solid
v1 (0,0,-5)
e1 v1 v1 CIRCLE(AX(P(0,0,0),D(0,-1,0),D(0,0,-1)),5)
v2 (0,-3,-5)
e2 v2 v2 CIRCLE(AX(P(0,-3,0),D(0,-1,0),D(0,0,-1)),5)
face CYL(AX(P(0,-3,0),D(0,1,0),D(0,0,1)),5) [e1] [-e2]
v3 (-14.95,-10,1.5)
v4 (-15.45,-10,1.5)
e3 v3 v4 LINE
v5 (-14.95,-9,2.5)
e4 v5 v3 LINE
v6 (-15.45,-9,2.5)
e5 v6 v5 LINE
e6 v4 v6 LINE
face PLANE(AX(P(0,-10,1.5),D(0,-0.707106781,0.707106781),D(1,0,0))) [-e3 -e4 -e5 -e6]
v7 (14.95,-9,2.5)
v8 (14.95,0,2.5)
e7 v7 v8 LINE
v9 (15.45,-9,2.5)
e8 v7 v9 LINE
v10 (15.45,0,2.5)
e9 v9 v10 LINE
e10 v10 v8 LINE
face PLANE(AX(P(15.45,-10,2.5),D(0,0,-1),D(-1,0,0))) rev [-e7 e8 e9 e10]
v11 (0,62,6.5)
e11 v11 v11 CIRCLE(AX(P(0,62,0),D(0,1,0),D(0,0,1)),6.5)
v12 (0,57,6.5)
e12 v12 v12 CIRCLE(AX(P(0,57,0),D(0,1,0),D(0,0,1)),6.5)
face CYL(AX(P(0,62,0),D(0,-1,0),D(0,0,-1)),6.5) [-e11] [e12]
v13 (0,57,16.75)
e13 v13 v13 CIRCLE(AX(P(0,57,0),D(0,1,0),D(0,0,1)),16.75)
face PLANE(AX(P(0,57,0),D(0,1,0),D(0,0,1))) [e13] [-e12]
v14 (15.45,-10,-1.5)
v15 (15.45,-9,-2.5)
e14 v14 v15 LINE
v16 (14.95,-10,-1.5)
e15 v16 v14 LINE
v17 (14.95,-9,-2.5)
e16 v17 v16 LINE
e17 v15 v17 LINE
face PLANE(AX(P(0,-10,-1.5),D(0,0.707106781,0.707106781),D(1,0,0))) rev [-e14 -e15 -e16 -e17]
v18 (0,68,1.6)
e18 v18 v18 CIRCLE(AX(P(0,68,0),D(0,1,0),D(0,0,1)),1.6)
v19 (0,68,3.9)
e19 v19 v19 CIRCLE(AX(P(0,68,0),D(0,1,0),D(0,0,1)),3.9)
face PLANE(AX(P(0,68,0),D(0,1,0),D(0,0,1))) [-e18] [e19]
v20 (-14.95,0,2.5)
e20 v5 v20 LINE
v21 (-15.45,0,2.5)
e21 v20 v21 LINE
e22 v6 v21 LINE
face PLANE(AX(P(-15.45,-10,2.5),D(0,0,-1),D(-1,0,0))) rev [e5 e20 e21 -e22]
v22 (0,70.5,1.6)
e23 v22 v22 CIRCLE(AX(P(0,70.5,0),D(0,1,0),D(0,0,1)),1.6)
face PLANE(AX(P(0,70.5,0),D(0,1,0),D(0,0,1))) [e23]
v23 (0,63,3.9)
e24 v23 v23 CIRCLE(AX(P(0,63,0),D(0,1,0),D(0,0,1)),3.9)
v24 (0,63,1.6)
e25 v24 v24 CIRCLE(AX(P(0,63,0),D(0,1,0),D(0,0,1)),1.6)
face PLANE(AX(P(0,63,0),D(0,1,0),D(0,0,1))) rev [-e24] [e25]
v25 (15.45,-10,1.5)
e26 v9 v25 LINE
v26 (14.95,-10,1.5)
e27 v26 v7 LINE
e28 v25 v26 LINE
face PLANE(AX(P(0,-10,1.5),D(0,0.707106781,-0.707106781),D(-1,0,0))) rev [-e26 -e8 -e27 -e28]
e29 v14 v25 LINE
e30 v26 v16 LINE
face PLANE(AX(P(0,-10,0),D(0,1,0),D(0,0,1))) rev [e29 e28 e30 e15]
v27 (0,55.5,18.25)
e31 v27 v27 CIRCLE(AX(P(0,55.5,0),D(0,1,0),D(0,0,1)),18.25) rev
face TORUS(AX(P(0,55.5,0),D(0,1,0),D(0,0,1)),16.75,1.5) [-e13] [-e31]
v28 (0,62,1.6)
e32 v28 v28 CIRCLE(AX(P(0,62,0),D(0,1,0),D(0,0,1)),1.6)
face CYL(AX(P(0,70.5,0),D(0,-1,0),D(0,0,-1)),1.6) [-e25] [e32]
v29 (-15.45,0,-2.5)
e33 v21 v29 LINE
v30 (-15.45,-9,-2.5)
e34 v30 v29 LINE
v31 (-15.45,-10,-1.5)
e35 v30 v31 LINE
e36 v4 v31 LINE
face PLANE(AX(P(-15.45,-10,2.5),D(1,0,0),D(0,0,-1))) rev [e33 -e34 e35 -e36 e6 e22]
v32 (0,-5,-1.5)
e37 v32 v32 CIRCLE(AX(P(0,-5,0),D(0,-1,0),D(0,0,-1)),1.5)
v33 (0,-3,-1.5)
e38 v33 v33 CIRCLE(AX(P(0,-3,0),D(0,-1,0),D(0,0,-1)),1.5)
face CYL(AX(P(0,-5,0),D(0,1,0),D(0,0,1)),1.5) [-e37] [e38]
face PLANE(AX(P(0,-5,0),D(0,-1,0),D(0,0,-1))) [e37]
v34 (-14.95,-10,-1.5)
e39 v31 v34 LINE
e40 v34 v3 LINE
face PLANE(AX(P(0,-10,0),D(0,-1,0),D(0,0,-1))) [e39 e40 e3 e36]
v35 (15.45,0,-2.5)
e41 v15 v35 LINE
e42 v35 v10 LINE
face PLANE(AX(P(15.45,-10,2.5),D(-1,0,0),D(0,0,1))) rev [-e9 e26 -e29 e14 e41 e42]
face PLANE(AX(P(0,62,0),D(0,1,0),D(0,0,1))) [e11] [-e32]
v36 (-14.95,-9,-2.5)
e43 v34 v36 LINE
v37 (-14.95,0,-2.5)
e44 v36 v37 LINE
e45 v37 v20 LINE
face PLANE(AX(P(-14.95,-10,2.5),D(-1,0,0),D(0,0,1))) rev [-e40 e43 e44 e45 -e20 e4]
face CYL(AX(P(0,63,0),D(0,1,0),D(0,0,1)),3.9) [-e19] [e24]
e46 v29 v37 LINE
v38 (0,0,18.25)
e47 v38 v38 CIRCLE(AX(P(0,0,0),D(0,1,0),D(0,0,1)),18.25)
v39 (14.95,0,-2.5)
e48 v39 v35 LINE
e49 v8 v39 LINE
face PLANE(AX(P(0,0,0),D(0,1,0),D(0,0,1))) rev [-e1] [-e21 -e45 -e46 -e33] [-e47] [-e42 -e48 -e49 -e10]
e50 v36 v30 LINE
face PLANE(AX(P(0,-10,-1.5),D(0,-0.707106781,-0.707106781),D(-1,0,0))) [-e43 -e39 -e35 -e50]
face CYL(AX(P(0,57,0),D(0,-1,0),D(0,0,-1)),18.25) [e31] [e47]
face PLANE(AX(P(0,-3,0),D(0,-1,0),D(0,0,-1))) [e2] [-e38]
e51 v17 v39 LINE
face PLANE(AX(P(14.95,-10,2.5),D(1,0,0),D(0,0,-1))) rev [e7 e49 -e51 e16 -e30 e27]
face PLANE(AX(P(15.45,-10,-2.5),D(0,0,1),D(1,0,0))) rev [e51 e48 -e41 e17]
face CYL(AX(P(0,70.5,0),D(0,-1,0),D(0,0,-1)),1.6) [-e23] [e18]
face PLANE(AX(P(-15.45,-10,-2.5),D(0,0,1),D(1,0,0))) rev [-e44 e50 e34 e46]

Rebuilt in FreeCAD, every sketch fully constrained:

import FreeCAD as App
import Part
import Sketcher
from FreeCAD import Vector
Q = App.Units.Quantity


def edges_at(feature, points):
    """Names of the edges that pass closest to the given points."""
    edges = feature.Shape.Edges
    near = lambda p: min(range(len(edges)), key=lambda i: edges[i].distToShape(Part.Vertex(*p))[0])
    return sorted({f"Edge{near(p) + 1}" for p in points})


def add_polygon(sketch, points):
    """Adds a closed chain of lines whose ends are joined by coincident constraints."""
    first, n = sketch.GeometryCount, len(points)
    for a, b in zip(points, points[1:] + points[:1]):
        sketch.addGeometry(Part.LineSegment(App.Vector(*a, 0), App.Vector(*b, 0)), False)
    for i in range(n):
        sketch.addConstraint(Sketcher.Constraint("Coincident", first + i, 2, first + (i + 1) % n, 1))

doc = App.newDocument("Part")
body = doc.addObject("PartDesign::Body", "Body")

# Sketch on XZ plane
sketch1 = doc.addObject("Sketcher::SketchObject", "Sketch")
body.addObject(sketch1)
sketch1.AttachmentSupport = (doc.XZ_Plane, [""])
sketch1.MapMode = "FlatFace"
sketch1.addGeometry(Part.Circle(Vector(0, 0, 0), Vector(0, 0, 1), 18), False)
sketch1.addConstraint([
    Sketcher.Constraint("Coincident", 0, 3, -1, 1),
    Sketcher.Constraint("Diameter", 0, Q("36.5 mm")),
])
pad1 = doc.addObject("PartDesign::Pad", "Pad")
body.addObject(pad1)
pad1.Profile = sketch1
pad1.Length = 57
pad1.Reversed = True

# Sketch on XZ plane
sketch2 = doc.addObject("Sketcher::SketchObject", "Sketch001")
body.addObject(sketch2)
sketch2.AttachmentSupport = (doc.XZ_Plane, [""])
sketch2.MapMode = "FlatFace"
sketch2.AttachmentOffset = App.Placement(Vector(0, 0, -57), App.Rotation())
sketch2.addGeometry(Part.Circle(Vector(0, 0, 0), Vector(0, 0, 1), 6), False)
sketch2.addConstraint([
    Sketcher.Constraint("Coincident", 0, 3, -1, 1),
    Sketcher.Constraint("Diameter", 0, Q("13 mm")),
])
pad2 = doc.addObject("PartDesign::Pad", "Pad001")
body.addObject(pad2)
pad2.Profile = sketch2
pad2.Length = 5
pad2.Reversed = True
doc.recompute()

fillet = doc.addObject("PartDesign::Fillet", "Fillet")
body.addObject(fillet)
fillet.Base = (pad2, edges_at(pad2, [(-18.25, 57, 0)]))
fillet.Radius = 1.5

# Sketch on XZ plane
sketch3 = doc.addObject("Sketcher::SketchObject", "Sketch002")
body.addObject(sketch3)
sketch3.AttachmentSupport = (doc.XZ_Plane, [""])
sketch3.MapMode = "FlatFace"
sketch3.AttachmentOffset = App.Placement(Vector(0, 0, -62), App.Rotation())
sketch3.addGeometry(Part.Circle(Vector(0, 0, 0), Vector(0, 0, 1), 1.6), False)
sketch3.addConstraint([
    Sketcher.Constraint("Coincident", 0, 3, -1, 1),
    Sketcher.Constraint("Diameter", 0, Q("3.2 mm")),
])
pad3 = doc.addObject("PartDesign::Pad", "Pad002")
body.addObject(pad3)
pad3.Profile = sketch3
pad3.Length = 8.5
pad3.Reversed = True

# Sketch on XZ plane
sketch4 = doc.addObject("Sketcher::SketchObject", "Sketch003")
body.addObject(sketch4)
sketch4.AttachmentSupport = (doc.XZ_Plane, [""])
sketch4.MapMode = "FlatFace"
sketch4.AttachmentOffset = App.Placement(Vector(0, 0, -68), App.Rotation())
sketch4.addGeometry(Part.Circle(Vector(0, 0, 0), Vector(0, 0, 1), 3.9), False)
sketch4.addConstraint([
    Sketcher.Constraint("Coincident", 0, 3, -1, 1),
    Sketcher.Constraint("Diameter", 0, Q("7.8 mm")),
])
pad4 = doc.addObject("PartDesign::Pad", "Pad003")
body.addObject(pad4)
pad4.Profile = sketch4
pad4.Length = 5

# Sketch on XZ plane
sketch5 = doc.addObject("Sketcher::SketchObject", "Sketch004")
body.addObject(sketch5)
sketch5.AttachmentSupport = (doc.XZ_Plane, [""])
sketch5.MapMode = "FlatFace"
sketch5.addGeometry(Part.Circle(Vector(0, 0, 0), Vector(0, 0, 1), 5), False)
sketch5.addConstraint([
    Sketcher.Constraint("Coincident", 0, 3, -1, 1),
    Sketcher.Constraint("Diameter", 0, Q("10 mm")),
])
pad5 = doc.addObject("PartDesign::Pad", "Pad004")
body.addObject(pad5)
pad5.Profile = sketch5
pad5.Length = 3

# Sketch on XZ plane
sketch6 = doc.addObject("Sketcher::SketchObject", "Sketch005")
body.addObject(sketch6)
sketch6.AttachmentSupport = (doc.XZ_Plane, [""])
sketch6.MapMode = "FlatFace"
sketch6.AttachmentOffset = App.Placement(Vector(0, 0, 3), App.Rotation())
sketch6.addGeometry(Part.Circle(Vector(0, 0, 0), Vector(0, 0, 1), 1.5), False)
sketch6.addConstraint([
    Sketcher.Constraint("Coincident", 0, 3, -1, 1),
    Sketcher.Constraint("Diameter", 0, Q("3 mm")),
])
pad6 = doc.addObject("PartDesign::Pad", "Pad005")
body.addObject(pad6)
pad6.Profile = sketch6
pad6.Length = 2

# Sketch on XZ plane
sketch7 = doc.addObject("Sketcher::SketchObject", "Sketch006")
body.addObject(sketch7)
sketch7.AttachmentSupport = (doc.XZ_Plane, [""])
sketch7.MapMode = "FlatFace"
add_polygon(sketch7, [(14.9, 2.5), (14.9, -2.5), (15.4, -2.5), (15.4, 2.5)])  # lines 0-3
add_polygon(sketch7, [(-15.4, 2.5), (-15.4, -2.5), (-14.9, -2.5), (-14.9, 2.5)])  # lines 4-7
sketch7.addConstraint([
    Sketcher.Constraint("Vertical", 0),
    Sketcher.Constraint("Horizontal", 1),
    Sketcher.Constraint("Vertical", 2),
    Sketcher.Constraint("Horizontal", 3),
    Sketcher.Constraint("Vertical", 4),
    Sketcher.Constraint("Horizontal", 5),
    Sketcher.Constraint("Vertical", 6),
    Sketcher.Constraint("Horizontal", 7),
    Sketcher.Constraint("Symmetric", 2, 2, 4, 2, -1, 1),
    Sketcher.Constraint("Symmetric", 0, 2, 6, 2, -1, 1),
    Sketcher.Constraint("Horizontal", 1, 2, 4, 2),
    Sketcher.Constraint("DistanceY", 0, 2, 0, 1, Q("5 mm")),
    Sketcher.Constraint("DistanceX", 1, 1, 1, 2, Q("0.5 mm")),
    Sketcher.Constraint("DistanceX", 4, 2, 0, 2, Q("30.4 mm")),
])
pad7 = doc.addObject("PartDesign::Pad", "Pad006")
body.addObject(pad7)
pad7.Profile = sketch7
pad7.Length = 10
doc.recompute()

chamfer = doc.addObject("PartDesign::Chamfer", "Chamfer")
body.addObject(chamfer)
chamfer.Base = (pad7, edges_at(pad7, [
    (15.2, -10, -2.5),
    (15.2, -10, 2.5),
    (-15.2, -10, -2.5),
    (-15.2, -10, 2.5),
]))
chamfer.Size = 1

doc.recompute()
